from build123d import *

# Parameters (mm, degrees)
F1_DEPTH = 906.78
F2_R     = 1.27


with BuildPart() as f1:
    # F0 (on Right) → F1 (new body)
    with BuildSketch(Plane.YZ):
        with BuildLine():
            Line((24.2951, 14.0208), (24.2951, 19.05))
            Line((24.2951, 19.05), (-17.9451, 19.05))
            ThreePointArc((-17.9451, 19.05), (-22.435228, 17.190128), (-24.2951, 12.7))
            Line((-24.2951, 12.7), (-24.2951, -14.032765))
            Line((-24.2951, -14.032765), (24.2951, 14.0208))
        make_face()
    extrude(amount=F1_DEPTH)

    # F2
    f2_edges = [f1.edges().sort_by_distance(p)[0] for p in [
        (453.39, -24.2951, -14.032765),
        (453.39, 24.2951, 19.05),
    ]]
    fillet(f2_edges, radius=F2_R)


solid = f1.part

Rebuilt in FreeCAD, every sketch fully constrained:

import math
import FreeCAD as App
import Part
import Sketcher

V = App.Vector
Q = App.Units.Quantity


def edges_at(feature, points):
    """Names of the edges that pass closest to the given points."""
    edges = feature.Shape.Edges
    near = lambda p: min(range(len(edges)), key=lambda i: edges[i].distToShape(Part.Vertex(*p))[0])
    return sorted({f"Edge{near(p) + 1}" for p in points})

doc = App.newDocument("Part")
body = doc.addObject("PartDesign::Body", "Body")

# Sketch on YZ plane
sketch1 = doc.addObject("Sketcher::SketchObject", "Sketch")
body.addObject(sketch1)
sketch1.AttachmentSupport = (doc.YZ_Plane, [""])
sketch1.MapMode = "FlatFace"
sketch1.addGeometry([
    Part.LineSegment(V(24, 14, 0), V(24, 19, 0)),  # 0
    Part.LineSegment(V(24, 19, 0), V(-18, 19, 0)),  # 1
    Part.ArcOfCircle(Part.Circle(V(-18, 13, 0), V(0, 0, 1), 6), math.radians(90), math.radians(180)),  # 2
    Part.LineSegment(V(-24, 13, 0), V(-24, -14, 0)),  # 3
    Part.LineSegment(V(-24, -14, 0), V(24, 14, 0)),  # 4
], False)
sketch1.addConstraint([
    Sketcher.Constraint("Coincident", 0, 2, 1, 1),
    Sketcher.Constraint("Tangent", 1, 2, 2, 1),
    Sketcher.Constraint("Tangent", 2, 2, 3, 1),
    Sketcher.Constraint("Coincident", 3, 2, 4, 1),
    Sketcher.Constraint("Coincident", 4, 2, 0, 1),
    Sketcher.Constraint("Vertical", 0),
    Sketcher.Constraint("Horizontal", 1),
    Sketcher.Constraint("Vertical", 3),
    Sketcher.Constraint("Radius", 2, Q("0.25 in")),
    Sketcher.Constraint("Angle", 4, Q("30 deg")),
    Sketcher.Constraint("DistanceY", -1, 1, 2, 3, Q("0.5 in")),
    Sketcher.Constraint("DistanceX", 1, 2, 1, 1, Q("1.663 in")),
    Sketcher.Constraint("DistanceY", 0, 1, 0, 2, Q("0.198 in")),
    Sketcher.Constraint("DistanceX", 2, 3, -1, 1, Q("0.7065 in")),
])
pad1 = doc.addObject("PartDesign::Pad", "Pad")
body.addObject(pad1)
pad1.Profile = sketch1
pad1.Length = Q("35.7 in")
doc.recompute()

fillet = doc.addObject("PartDesign::Fillet", "Fillet")
body.addObject(fillet)
fillet.Base = (pad1, edges_at(pad1, [(453.39, -24.295, -14.033), (453.39, 24.295, 19.05)]))
fillet.Radius = Q("0.05 in")

doc.recompute()
